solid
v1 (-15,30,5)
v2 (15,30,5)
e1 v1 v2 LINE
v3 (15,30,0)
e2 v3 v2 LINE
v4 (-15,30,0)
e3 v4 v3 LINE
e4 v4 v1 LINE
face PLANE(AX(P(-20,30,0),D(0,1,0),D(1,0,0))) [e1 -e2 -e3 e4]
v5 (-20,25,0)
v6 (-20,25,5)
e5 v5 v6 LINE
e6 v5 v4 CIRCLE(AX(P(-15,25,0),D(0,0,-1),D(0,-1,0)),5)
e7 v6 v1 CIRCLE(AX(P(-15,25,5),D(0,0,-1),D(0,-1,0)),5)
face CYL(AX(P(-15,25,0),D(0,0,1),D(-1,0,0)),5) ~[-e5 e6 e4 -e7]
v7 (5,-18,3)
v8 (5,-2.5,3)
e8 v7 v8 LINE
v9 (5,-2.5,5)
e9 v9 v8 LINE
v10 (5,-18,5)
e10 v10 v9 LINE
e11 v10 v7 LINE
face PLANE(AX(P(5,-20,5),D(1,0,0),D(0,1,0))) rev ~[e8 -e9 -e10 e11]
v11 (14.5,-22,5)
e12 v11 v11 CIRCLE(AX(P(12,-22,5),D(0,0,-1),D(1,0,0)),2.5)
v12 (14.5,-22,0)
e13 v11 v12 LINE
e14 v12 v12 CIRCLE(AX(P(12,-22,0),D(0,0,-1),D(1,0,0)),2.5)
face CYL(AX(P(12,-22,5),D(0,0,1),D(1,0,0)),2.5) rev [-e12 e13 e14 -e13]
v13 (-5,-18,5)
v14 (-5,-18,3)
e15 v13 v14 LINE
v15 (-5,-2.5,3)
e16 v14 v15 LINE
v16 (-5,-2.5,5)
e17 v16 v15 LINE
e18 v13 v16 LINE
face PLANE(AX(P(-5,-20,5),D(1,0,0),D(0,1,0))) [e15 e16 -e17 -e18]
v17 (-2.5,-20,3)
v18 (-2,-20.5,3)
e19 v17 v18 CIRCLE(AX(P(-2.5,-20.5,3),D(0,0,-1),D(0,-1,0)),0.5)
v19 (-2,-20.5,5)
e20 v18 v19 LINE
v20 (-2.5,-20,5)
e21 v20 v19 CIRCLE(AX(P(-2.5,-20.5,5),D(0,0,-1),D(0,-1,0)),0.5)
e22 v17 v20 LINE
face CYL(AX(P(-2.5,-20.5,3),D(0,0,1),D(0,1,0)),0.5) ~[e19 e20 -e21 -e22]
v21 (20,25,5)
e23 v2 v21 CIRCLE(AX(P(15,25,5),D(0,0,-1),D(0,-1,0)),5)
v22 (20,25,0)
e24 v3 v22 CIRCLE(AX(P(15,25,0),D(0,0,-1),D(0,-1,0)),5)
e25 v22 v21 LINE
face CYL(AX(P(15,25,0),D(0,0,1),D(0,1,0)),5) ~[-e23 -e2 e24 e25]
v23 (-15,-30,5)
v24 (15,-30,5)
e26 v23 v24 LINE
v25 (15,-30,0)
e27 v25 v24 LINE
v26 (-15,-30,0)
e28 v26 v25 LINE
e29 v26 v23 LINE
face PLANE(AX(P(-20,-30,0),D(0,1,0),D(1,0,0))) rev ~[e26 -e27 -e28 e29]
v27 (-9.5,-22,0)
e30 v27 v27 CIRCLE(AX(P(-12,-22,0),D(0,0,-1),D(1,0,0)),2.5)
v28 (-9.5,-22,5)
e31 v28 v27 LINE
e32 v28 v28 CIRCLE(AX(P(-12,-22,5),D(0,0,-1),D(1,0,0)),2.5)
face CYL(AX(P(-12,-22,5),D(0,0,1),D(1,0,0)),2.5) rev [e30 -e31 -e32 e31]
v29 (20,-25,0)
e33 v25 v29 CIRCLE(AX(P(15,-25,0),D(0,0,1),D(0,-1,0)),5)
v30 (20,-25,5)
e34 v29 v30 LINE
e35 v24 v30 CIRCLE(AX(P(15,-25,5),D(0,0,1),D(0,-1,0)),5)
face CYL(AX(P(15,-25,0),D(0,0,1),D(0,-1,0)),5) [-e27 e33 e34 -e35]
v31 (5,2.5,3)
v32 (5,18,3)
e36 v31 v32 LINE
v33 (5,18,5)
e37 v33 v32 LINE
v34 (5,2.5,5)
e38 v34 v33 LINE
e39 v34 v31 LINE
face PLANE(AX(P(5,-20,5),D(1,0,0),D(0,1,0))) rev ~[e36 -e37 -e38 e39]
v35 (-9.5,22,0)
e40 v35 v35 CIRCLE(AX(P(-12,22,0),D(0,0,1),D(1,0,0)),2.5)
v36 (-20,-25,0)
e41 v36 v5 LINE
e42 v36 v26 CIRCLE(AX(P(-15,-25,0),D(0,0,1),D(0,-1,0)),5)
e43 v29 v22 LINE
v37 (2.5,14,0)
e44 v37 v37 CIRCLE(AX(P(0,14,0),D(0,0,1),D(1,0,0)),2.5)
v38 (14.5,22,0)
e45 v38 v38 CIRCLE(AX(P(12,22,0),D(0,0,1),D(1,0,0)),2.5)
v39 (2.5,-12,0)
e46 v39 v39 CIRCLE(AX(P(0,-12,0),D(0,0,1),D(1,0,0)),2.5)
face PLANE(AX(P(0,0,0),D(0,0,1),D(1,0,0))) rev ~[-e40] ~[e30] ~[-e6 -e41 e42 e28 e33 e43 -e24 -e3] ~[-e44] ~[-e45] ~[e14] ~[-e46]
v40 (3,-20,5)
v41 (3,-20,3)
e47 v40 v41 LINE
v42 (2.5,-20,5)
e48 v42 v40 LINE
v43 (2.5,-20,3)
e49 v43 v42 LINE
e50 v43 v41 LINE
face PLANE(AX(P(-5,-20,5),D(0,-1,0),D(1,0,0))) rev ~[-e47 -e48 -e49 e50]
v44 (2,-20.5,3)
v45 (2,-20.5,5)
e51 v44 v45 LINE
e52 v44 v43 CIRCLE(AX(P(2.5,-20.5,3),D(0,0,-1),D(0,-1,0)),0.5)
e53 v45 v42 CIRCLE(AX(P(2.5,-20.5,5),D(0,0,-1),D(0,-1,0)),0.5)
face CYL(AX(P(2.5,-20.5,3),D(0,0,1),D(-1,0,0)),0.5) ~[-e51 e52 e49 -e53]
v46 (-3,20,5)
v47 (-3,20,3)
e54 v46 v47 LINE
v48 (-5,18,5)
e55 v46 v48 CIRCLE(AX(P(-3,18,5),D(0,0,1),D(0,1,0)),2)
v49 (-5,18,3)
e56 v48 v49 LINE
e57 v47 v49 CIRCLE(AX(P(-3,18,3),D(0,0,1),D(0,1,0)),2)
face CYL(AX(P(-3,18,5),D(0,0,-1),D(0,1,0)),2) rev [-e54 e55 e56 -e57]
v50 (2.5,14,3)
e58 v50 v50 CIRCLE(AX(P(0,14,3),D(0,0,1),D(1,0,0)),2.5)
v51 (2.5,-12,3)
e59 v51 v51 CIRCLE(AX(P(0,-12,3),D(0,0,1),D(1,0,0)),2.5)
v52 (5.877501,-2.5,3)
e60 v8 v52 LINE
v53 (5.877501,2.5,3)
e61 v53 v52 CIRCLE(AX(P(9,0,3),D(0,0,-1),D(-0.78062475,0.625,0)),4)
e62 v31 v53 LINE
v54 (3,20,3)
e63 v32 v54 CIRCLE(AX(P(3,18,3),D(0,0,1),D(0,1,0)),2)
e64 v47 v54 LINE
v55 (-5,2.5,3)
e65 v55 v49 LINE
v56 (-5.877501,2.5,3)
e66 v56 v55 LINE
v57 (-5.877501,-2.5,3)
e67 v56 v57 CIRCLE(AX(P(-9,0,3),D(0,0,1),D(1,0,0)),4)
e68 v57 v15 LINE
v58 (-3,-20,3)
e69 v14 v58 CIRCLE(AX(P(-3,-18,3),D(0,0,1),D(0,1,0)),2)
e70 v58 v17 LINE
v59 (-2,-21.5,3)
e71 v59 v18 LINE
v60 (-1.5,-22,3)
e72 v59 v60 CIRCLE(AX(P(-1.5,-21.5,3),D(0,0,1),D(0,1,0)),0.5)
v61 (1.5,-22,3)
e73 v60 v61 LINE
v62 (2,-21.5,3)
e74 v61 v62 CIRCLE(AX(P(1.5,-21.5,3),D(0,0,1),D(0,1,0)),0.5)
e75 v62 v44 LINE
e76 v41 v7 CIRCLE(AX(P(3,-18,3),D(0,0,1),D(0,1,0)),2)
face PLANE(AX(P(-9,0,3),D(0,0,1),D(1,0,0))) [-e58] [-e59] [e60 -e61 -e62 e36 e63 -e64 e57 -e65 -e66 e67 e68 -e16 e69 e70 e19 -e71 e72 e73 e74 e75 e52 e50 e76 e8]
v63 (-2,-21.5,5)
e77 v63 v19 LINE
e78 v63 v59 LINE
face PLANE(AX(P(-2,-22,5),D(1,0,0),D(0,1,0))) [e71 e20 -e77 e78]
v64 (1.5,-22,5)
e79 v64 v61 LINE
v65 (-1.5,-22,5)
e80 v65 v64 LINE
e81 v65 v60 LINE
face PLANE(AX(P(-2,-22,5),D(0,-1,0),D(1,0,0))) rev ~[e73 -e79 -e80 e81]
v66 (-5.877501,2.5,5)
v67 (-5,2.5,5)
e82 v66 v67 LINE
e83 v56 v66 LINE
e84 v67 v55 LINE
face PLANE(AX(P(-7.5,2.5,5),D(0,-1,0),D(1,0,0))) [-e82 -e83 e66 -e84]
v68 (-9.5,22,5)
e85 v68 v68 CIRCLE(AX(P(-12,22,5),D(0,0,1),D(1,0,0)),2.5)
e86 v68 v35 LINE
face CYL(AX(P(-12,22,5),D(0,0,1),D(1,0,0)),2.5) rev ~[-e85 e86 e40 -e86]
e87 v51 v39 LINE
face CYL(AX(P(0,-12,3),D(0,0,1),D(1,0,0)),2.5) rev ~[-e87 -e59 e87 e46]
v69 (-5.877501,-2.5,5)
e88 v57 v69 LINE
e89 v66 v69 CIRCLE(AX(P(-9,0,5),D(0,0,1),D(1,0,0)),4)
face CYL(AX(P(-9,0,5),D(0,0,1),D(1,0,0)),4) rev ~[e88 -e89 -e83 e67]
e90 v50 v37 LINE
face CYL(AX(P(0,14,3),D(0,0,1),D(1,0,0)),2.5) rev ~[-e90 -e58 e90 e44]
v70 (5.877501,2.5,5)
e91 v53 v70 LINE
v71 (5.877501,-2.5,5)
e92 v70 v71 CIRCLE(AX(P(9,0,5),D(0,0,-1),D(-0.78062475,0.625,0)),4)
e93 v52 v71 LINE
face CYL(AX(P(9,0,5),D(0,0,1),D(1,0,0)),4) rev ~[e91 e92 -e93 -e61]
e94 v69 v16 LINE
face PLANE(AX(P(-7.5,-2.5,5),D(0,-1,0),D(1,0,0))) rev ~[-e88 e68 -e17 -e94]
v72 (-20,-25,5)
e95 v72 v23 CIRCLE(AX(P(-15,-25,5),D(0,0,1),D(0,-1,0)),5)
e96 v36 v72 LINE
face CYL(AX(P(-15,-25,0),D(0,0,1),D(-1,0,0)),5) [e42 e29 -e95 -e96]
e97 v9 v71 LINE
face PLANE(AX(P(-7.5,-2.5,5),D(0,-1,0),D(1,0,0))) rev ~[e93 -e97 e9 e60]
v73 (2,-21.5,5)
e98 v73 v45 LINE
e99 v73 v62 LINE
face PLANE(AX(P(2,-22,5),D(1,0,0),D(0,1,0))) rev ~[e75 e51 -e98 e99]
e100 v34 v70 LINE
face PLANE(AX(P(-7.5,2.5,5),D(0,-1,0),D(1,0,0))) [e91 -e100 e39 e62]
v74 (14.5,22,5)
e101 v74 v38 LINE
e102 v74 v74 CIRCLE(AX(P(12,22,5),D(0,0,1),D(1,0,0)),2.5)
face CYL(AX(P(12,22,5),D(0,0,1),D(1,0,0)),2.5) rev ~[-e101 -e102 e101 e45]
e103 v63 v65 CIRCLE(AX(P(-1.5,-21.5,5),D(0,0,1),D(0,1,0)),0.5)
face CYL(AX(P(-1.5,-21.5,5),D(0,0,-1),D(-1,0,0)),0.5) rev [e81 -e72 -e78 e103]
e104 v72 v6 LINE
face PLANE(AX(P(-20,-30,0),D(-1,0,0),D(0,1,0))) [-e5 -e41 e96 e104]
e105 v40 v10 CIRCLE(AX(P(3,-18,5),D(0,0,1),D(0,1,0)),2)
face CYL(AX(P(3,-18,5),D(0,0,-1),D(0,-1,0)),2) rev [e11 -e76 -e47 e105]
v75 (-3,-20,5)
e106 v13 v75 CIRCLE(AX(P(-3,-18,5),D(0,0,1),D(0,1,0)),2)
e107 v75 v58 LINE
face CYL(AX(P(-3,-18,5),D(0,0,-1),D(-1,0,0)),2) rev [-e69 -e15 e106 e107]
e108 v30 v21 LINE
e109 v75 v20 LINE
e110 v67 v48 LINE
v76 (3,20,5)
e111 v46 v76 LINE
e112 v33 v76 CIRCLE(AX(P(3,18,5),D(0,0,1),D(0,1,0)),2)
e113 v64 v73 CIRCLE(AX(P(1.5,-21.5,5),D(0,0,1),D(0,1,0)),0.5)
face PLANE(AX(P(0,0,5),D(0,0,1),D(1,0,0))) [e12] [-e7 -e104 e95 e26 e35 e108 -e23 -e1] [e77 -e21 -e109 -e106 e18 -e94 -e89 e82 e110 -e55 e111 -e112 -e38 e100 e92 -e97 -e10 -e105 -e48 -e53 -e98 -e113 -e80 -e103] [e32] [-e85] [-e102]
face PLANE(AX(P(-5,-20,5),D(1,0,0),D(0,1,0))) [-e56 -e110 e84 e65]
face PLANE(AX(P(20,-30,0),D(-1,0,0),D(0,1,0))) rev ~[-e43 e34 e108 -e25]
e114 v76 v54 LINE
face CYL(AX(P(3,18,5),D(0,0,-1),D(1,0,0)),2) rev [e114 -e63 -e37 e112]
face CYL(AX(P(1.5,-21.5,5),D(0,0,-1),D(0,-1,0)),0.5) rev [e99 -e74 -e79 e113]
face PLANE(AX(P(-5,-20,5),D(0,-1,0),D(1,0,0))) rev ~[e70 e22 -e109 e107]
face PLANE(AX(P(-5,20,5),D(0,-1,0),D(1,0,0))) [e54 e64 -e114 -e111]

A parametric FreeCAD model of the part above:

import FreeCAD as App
import Part
import Sketcher

V = App.Vector
Q = App.Units.Quantity


def edges_at(feature, points):
    """Names of the edges that pass closest to the given points."""
    edges = feature.Shape.Edges
    near = lambda p: min(range(len(edges)), key=lambda i: edges[i].distToShape(Part.Vertex(*p))[0])
    return sorted({f"Edge{near(p) + 1}" for p in points})


def add_polygon(sketch, points):
    """Adds a closed chain of lines whose ends are joined by coincident constraints."""
    first, n = sketch.GeometryCount, len(points)
    for a, b in zip(points, points[1:] + points[:1]):
        sketch.addGeometry(Part.LineSegment(App.Vector(*a, 0), App.Vector(*b, 0)), False)
    for i in range(n):
        sketch.addConstraint(Sketcher.Constraint("Coincident", first + i, 2, first + (i + 1) % n, 1))

doc = App.newDocument("Part")
body = doc.addObject("PartDesign::Body", "Body")

sketch1 = body.newObject("Sketcher::SketchObject", "Sketch")
sketch1.AttachmentSupport = (doc.getObject("XY_Plane"), [""])
sketch1.MapMode = "FlatFace"
add_polygon(sketch1, [(-20, 30), (-20, -30), (20, -30), (20, 30)])
sketch1.addConstraint(Sketcher.Constraint("Vertical", 0))
sketch1.addConstraint(Sketcher.Constraint("Horizontal", 1))
sketch1.addConstraint(Sketcher.Constraint("Vertical", 2))
sketch1.addConstraint(Sketcher.Constraint("Horizontal", 3))
sketch1.addConstraint(Sketcher.Constraint("Symmetric", 0, 2, 2, 2, -1, 1))
sketch1.addConstraint(Sketcher.Constraint("DistanceX", 1, 1, 1, 2, Q("40 mm")))
sketch1.addConstraint(Sketcher.Constraint("DistanceY", 0, 2, 0, 1, Q("60 mm")))
pad1 = body.newObject("PartDesign::Pad", "Pad")
pad1.Profile = sketch1
pad1.Length = 5

sketch2 = body.newObject("Sketcher::SketchObject", "Sketch001")
sketch2.AttachmentSupport = (doc.getObject("XY_Plane"), [""])
sketch2.MapMode = "FlatFace"
sketch2.AttachmentOffset = App.Placement(V(0, 0, 5), App.Rotation())
add_polygon(sketch2, [(-5, 20), (-5, -20), (5, -20), (5, 20)])
sketch2.addConstraint(Sketcher.Constraint("Vertical", 0))
sketch2.addConstraint(Sketcher.Constraint("Horizontal", 1))
sketch2.addConstraint(Sketcher.Constraint("Vertical", 2))
sketch2.addConstraint(Sketcher.Constraint("Horizontal", 3))
sketch2.addConstraint(Sketcher.Constraint("Symmetric", 0, 2, 2, 2, -1, 1))
sketch2.addConstraint(Sketcher.Constraint("DistanceX", 1, 1, 1, 2, Q("10 mm")))
sketch2.addConstraint(Sketcher.Constraint("DistanceY", 0, 2, 0, 1, Q("40 mm")))
pocket1 = body.newObject("PartDesign::Pocket", "Pocket")
pocket1.Profile = sketch2
pocket1.Length = 2

sketch3 = body.newObject("Sketcher::SketchObject", "Sketch002")
sketch3.AttachmentSupport = (doc.getObject("XY_Plane"), [""])
sketch3.MapMode = "FlatFace"
sketch3.AttachmentOffset = App.Placement(V(0, 0, 5), App.Rotation())
sketch3.addGeometry(Part.Circle(V(9, 0, 0), V(0, 0, 1), 4), False)
sketch3.addGeometry(Part.Circle(V(-9, 0, 0), V(0, 0, 1), 4), False)
sketch3.addConstraint(Sketcher.Constraint("Equal", 0, 1))
sketch3.addConstraint(Sketcher.Constraint("Symmetric", 0, 3, 1, 3, -1, 1))
sketch3.addConstraint(Sketcher.Constraint("PointOnObject", 0, 3, -1))
sketch3.addConstraint(Sketcher.Constraint("Diameter", 0, Q("8 mm")))
sketch3.addConstraint(Sketcher.Constraint("DistanceX", -1, 1, 0, 3, Q("9 mm")))
pocket2 = body.newObject("PartDesign::Pocket", "Pocket001")
pocket2.Profile = sketch3
pocket2.Length = 2

sketch4 = body.newObject("Sketcher::SketchObject", "Sketch003")
sketch4.AttachmentSupport = (doc.getObject("XY_Plane"), [""])
sketch4.MapMode = "FlatFace"
sketch4.AttachmentOffset = App.Placement(V(0, 0, 5), App.Rotation())
add_polygon(sketch4, [(-8, 2), (-8, -2), (8, -2), (8, 2)])
sketch4.addConstraint(Sketcher.Constraint("Vertical", 0))
sketch4.addConstraint(Sketcher.Constraint("Horizontal", 1))
sketch4.addConstraint(Sketcher.Constraint("Vertical", 2))
sketch4.addConstraint(Sketcher.Constraint("Horizontal", 3))
sketch4.addConstraint(Sketcher.Constraint("Symmetric", 0, 2, 2, 2, -1, 1))
sketch4.addConstraint(Sketcher.Constraint("DistanceX", 1, 1, 1, 2, Q("15 mm")))
sketch4.addConstraint(Sketcher.Constraint("DistanceY", 0, 2, 0, 1, Q("5 mm")))
pocket3 = body.newObject("PartDesign::Pocket", "Pocket002")
pocket3.Profile = sketch4
pocket3.Length = 2

sketch5 = body.newObject("Sketcher::SketchObject", "Sketch004")
sketch5.AttachmentSupport = (doc.getObject("XY_Plane"), [""])
sketch5.MapMode = "FlatFace"
sketch5.AttachmentOffset = App.Placement(V(0, 0, 3), App.Rotation())
sketch5.addGeometry(Part.Circle(V(0, -12, 0), V(0, 0, 1), 2.5), False)
sketch5.addConstraint(Sketcher.Constraint("PointOnObject", 0, 3, -2))
sketch5.addConstraint(Sketcher.Constraint("Diameter", 0, Q("5 mm")))
sketch5.addConstraint(Sketcher.Constraint("DistanceY", 0, 3, -1, 1, Q("12 mm")))
pocket4 = body.newObject("PartDesign::Pocket", "Pocket003")
pocket4.Profile = sketch5
pocket4.Length = 5

sketch6 = body.newObject("Sketcher::SketchObject", "Sketch005")
sketch6.AttachmentSupport = (doc.getObject("XY_Plane"), [""])
sketch6.MapMode = "FlatFace"
sketch6.AttachmentOffset = App.Placement(V(0, 0, 5), App.Rotation())
add_polygon(sketch6, [(-2, -18), (-2, -22), (2, -22), (2, -18)])
sketch6.addConstraint(Sketcher.Constraint("Vertical", 0))
sketch6.addConstraint(Sketcher.Constraint("Horizontal", 1))
sketch6.addConstraint(Sketcher.Constraint("Vertical", 2))
sketch6.addConstraint(Sketcher.Constraint("Horizontal", 3))
sketch6.addConstraint(Sketcher.Constraint("Equal", 3, 0))
sketch6.addConstraint(Sketcher.Constraint("DistanceX", 1, 1, 1, 2, Q("4 mm")))
sketch6.addConstraint(Sketcher.Constraint("DistanceX", 0, 2, -1, 1, Q("2 mm")))
sketch6.addConstraint(Sketcher.Constraint("DistanceY", 0, 2, -1, 1, Q("22 mm")))
pocket5 = body.newObject("PartDesign::Pocket", "Pocket004")
pocket5.Profile = sketch6
pocket5.Length = 2

sketch7 = body.newObject("Sketcher::SketchObject", "Sketch006")
sketch7.AttachmentSupport = (doc.getObject("XY_Plane"), [""])
sketch7.MapMode = "FlatFace"
sketch7.AttachmentOffset = App.Placement(V(0, 0, 3), App.Rotation())
sketch7.addGeometry(Part.Circle(V(0, 14, 0), V(0, 0, 1), 2.5), False)
sketch7.addConstraint(Sketcher.Constraint("PointOnObject", 0, 3, -2))
sketch7.addConstraint(Sketcher.Constraint("Diameter", 0, Q("5 mm")))
sketch7.addConstraint(Sketcher.Constraint("DistanceY", -1, 1, 0, 3, Q("14 mm")))
pocket6 = body.newObject("PartDesign::Pocket", "Pocket005")
pocket6.Profile = sketch7
pocket6.Length = 3
doc.recompute()

fillet = body.newObject("PartDesign::Fillet", "Fillet")
fillet.Base = (pocket6, edges_at(pocket6, [
    (-5, 20, 4),
    (5, 20, 4),
    (-5, -20, 4),
    (5, -20, 4),
]))
fillet.Radius = 2
doc.recompute()

fillet2 = body.newObject("PartDesign::Fillet", "Fillet001")
fillet2.Base = (fillet, edges_at(fillet, [
    (-2, -22, 4),
    (2, -22, 4),
    (2, -20, 4),
    (-2, -20, 4),
]))
fillet2.Radius = 0.5

sketch8 = body.newObject("Sketcher::SketchObject", "Sketch007")
sketch8.AttachmentSupport = (doc.getObject("XY_Plane"), [""])
sketch8.MapMode = "FlatFace"
sketch8.AttachmentOffset = App.Placement(V(0, 0, 5), App.Rotation())
sketch8.addGeometry(Part.Circle(V(-12, 22, 0), V(0, 0, 1), 2.5), False)
sketch8.addGeometry(Part.Circle(V(12, 22, 0), V(0, 0, 1), 2.5), False)
sketch8.addConstraint(Sketcher.Constraint("Equal", 0, 1))
sketch8.addConstraint(Sketcher.Constraint("Symmetric", 0, 3, 1, 3, -2))
sketch8.addConstraint(Sketcher.Constraint("Diameter", 0, Q("5 mm")))
sketch8.addConstraint(Sketcher.Constraint("DistanceX", 0, 3, -1, 1, Q("12 mm")))
sketch8.addConstraint(Sketcher.Constraint("DistanceY", -1, 1, 0, 3, Q("22 mm")))
pocket7 = body.newObject("PartDesign::Pocket", "Pocket006")
pocket7.Profile = sketch8
pocket7.Length = 5
doc.recompute()

mirrored = body.newObject("PartDesign::Mirrored", "Mirrored")
mirrored.Originals = [pocket7]
mirrored.MirrorPlane = (doc.getObject("XZ_Plane"), [""])
body.Tip = mirrored
doc.recompute()

fillet3 = body.newObject("PartDesign::Fillet", "Fillet002")
fillet3.Base = (mirrored, edges_at(mirrored, [
    (-20, -30, 2.5),
    (20, -30, 2.5),
    (-20, 30, 2.5),
    (20, 30, 2.5),
]))
fillet3.Radius = 5

doc.recompute()
